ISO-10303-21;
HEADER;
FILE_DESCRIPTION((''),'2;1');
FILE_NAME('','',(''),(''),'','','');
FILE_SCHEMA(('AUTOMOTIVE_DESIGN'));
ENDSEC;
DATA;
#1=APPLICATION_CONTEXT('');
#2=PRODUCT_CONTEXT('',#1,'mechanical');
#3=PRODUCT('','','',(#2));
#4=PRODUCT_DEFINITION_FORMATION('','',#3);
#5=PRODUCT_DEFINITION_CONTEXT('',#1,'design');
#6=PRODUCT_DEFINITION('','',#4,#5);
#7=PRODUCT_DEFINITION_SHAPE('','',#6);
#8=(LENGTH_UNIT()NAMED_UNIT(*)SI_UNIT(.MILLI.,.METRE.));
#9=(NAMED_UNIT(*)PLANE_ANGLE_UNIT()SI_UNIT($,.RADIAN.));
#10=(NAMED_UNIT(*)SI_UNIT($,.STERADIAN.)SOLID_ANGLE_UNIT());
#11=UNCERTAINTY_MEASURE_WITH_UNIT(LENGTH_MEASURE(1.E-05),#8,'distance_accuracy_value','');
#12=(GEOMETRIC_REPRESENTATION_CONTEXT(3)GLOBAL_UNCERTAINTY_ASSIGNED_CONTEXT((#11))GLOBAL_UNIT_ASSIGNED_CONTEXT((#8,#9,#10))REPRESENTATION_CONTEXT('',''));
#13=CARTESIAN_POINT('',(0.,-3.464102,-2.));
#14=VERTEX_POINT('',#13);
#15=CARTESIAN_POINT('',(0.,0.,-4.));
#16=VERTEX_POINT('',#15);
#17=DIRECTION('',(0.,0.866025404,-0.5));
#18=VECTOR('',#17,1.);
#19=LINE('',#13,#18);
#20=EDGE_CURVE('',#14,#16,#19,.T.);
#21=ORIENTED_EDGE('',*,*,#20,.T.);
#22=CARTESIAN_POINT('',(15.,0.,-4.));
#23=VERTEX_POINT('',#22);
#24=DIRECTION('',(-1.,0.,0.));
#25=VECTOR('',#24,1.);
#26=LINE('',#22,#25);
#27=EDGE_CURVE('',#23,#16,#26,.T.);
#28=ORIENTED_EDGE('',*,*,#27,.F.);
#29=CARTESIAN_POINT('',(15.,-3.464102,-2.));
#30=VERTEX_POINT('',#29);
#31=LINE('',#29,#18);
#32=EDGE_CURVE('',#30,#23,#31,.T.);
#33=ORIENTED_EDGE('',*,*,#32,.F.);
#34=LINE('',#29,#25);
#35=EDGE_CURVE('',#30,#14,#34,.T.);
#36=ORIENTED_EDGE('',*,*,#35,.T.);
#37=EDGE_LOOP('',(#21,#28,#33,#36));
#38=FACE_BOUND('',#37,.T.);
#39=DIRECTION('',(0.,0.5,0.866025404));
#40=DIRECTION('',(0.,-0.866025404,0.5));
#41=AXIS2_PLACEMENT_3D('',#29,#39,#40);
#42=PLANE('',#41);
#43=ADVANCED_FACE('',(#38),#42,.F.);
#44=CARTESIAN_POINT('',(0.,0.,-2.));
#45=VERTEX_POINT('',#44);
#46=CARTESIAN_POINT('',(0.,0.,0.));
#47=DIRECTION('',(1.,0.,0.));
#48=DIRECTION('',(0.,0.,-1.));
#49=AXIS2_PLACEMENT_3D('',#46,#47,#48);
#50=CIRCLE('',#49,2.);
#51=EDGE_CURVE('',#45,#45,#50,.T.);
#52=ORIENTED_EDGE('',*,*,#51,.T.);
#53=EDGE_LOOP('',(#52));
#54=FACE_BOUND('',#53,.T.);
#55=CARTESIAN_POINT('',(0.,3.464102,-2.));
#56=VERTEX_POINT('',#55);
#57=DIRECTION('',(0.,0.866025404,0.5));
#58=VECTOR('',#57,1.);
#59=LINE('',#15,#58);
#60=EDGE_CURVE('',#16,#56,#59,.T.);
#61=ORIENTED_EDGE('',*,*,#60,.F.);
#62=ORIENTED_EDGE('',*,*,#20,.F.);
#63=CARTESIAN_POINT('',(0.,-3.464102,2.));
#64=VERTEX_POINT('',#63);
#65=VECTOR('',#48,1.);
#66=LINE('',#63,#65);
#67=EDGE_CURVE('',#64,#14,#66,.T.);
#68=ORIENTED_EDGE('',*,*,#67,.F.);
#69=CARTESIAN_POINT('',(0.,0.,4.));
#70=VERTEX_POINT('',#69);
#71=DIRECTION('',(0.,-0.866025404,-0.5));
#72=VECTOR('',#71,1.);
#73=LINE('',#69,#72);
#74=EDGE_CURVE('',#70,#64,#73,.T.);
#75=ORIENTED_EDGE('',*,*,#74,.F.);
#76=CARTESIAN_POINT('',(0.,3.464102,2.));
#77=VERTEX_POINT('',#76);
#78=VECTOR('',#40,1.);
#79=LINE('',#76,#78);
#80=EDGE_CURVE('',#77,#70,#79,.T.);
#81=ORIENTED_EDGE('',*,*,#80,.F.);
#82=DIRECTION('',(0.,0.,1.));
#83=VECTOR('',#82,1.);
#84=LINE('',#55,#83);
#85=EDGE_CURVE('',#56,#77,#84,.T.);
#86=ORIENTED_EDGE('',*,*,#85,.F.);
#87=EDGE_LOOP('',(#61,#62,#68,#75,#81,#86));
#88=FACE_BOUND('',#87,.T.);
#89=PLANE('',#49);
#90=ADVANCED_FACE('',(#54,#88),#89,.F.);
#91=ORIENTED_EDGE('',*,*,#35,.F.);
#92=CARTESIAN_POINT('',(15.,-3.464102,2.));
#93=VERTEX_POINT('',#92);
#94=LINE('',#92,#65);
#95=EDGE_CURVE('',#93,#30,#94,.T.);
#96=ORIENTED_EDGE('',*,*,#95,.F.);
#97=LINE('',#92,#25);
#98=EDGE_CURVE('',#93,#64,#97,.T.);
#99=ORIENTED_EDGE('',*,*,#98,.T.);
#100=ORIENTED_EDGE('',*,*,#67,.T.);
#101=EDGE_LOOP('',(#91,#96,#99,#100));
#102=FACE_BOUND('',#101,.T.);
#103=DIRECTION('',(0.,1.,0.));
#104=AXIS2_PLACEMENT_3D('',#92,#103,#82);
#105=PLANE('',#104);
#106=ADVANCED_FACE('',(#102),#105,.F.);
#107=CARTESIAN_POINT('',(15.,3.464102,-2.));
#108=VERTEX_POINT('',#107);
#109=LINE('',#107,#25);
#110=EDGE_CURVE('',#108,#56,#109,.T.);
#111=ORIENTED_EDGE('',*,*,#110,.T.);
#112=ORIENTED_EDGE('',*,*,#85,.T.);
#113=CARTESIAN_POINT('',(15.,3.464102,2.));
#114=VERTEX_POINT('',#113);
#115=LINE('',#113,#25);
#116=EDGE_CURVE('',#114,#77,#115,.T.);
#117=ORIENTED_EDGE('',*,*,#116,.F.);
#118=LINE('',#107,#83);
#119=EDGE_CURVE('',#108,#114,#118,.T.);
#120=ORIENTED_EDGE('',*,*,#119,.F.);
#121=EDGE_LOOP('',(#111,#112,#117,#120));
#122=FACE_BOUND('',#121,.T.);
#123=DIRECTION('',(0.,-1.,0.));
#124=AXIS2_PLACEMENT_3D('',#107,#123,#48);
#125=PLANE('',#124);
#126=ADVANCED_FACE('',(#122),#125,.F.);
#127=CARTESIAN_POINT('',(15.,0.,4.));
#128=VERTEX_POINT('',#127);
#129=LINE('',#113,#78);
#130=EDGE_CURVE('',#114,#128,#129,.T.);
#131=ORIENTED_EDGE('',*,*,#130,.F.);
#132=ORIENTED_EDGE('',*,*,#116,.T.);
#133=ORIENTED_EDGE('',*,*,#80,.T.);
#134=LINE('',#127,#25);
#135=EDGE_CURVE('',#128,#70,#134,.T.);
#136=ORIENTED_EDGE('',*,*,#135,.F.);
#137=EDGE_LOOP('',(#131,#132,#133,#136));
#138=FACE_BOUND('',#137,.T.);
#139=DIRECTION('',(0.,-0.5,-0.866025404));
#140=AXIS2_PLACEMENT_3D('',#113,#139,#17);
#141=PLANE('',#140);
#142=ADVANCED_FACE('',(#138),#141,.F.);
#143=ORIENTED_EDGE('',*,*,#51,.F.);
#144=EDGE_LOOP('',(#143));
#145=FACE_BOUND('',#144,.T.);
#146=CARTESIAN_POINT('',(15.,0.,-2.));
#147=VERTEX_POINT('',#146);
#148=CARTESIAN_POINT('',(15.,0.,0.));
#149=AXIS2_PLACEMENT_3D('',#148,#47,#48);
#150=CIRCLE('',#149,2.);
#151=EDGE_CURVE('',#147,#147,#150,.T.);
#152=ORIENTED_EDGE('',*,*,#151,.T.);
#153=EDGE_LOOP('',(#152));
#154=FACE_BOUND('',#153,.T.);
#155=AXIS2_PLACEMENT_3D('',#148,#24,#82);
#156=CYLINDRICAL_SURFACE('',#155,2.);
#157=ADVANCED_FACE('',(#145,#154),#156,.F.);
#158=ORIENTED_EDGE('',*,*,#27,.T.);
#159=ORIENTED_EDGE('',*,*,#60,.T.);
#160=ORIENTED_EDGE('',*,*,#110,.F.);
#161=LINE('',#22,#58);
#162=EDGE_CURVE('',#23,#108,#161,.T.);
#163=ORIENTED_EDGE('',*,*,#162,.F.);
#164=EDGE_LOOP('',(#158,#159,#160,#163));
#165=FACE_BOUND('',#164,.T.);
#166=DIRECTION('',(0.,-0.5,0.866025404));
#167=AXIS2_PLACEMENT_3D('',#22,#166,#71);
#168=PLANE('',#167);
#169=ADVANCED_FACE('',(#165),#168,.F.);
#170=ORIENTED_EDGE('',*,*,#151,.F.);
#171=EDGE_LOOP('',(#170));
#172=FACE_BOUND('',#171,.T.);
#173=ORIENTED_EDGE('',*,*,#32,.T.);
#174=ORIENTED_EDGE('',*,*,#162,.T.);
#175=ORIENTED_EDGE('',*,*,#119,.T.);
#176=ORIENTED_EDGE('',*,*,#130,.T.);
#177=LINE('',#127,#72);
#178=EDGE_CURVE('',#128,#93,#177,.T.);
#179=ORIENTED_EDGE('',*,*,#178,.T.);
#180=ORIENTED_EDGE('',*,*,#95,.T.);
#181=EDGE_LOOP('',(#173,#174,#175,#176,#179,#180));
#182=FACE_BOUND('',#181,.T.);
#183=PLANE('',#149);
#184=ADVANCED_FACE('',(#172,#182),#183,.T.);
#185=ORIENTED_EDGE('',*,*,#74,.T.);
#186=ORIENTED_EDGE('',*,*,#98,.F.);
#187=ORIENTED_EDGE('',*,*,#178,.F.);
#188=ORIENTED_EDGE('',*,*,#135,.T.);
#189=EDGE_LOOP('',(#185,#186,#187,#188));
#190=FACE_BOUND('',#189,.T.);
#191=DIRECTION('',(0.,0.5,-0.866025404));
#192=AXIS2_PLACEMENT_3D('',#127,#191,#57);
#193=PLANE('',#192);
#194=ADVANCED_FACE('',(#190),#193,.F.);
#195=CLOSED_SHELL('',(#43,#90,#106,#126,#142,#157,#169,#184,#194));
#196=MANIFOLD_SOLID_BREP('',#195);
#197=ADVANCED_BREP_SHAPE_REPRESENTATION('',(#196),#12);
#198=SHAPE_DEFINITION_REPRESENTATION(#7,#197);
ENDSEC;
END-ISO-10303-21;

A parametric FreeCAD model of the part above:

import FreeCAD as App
import Part
import Sketcher
Q = App.Units.Quantity

doc = App.newDocument("Part")
body = doc.addObject("PartDesign::Body", "Body")

# Sketch on YZ plane
sketch1 = doc.addObject("Sketcher::SketchObject", "Sketch")
body.addObject(sketch1)
sketch1.AttachmentSupport = (doc.YZ_Plane, [""])
sketch1.MapMode = "FlatFace"
sketch1.addGeometry(Part.LineSegment(App.Vector(0, 4, 0), App.Vector(-3.464102, 2, 0)), False)
sketch1.addGeometry(Part.LineSegment(App.Vector(-3.464102, 2, 0), App.Vector(-3.464102, -2, 0)), False)
sketch1.addGeometry(Part.LineSegment(App.Vector(-3.464102, -2, 0), App.Vector(0, -4, 0)), False)
sketch1.addGeometry(Part.LineSegment(App.Vector(0, -4, 0), App.Vector(3.464102, -2, 0)), False)
sketch1.addGeometry(Part.LineSegment(App.Vector(3.464102, -2, 0), App.Vector(3.464102, 2, 0)), False)
sketch1.addGeometry(Part.LineSegment(App.Vector(3.464102, 2, 0), App.Vector(0, 4, 0)), False)
sketch1.addGeometry(Part.Circle(App.Vector(0, 0, 0), App.Vector(0, 0, 1), 2), False)
sketch1.addConstraint(Sketcher.Constraint("Coincident", 0, 2, 1, 1))
sketch1.addConstraint(Sketcher.Constraint("Coincident", 1, 2, 2, 1))
sketch1.addConstraint(Sketcher.Constraint("Coincident", 2, 2, 3, 1))
sketch1.addConstraint(Sketcher.Constraint("Coincident", 3, 2, 4, 1))
sketch1.addConstraint(Sketcher.Constraint("Coincident", 4, 2, 5, 1))
sketch1.addConstraint(Sketcher.Constraint("Coincident", 5, 2, 0, 1))
sketch1.addConstraint(Sketcher.Constraint("Vertical", 1))
sketch1.addConstraint(Sketcher.Constraint("Vertical", 4))
sketch1.addConstraint(Sketcher.Constraint("Coincident", 6, 3, -1, 1))
sketch1.addConstraint(Sketcher.Constraint("Symmetric", 0, 2, 3, 2, -1, 1))
sketch1.addConstraint(Sketcher.Constraint("Symmetric", 2, 2, 5, 2, -1, 1))
sketch1.addConstraint(Sketcher.Constraint("PointOnObject", 2, 2, -2))
sketch1.addConstraint(Sketcher.Constraint("Parallel", 2, 5))
sketch1.addConstraint(Sketcher.Constraint("Horizontal", 1, 2, 3, 2))
sketch1.addConstraint(Sketcher.Constraint("Diameter", 6, 4.0))
sketch1.addConstraint(Sketcher.Constraint("DistanceY", 1, 2, 1, 1, 4.0))
sketch1.addConstraint(Sketcher.Constraint("Angle", 0, Q("-150 deg")))
sketch1.addConstraint(Sketcher.Constraint("Distance", 0, 4.0))
pad1 = doc.addObject("PartDesign::Pad", "Pad")
body.addObject(pad1)
pad1.Profile = sketch1
pad1.Length = 15

doc.recompute()
